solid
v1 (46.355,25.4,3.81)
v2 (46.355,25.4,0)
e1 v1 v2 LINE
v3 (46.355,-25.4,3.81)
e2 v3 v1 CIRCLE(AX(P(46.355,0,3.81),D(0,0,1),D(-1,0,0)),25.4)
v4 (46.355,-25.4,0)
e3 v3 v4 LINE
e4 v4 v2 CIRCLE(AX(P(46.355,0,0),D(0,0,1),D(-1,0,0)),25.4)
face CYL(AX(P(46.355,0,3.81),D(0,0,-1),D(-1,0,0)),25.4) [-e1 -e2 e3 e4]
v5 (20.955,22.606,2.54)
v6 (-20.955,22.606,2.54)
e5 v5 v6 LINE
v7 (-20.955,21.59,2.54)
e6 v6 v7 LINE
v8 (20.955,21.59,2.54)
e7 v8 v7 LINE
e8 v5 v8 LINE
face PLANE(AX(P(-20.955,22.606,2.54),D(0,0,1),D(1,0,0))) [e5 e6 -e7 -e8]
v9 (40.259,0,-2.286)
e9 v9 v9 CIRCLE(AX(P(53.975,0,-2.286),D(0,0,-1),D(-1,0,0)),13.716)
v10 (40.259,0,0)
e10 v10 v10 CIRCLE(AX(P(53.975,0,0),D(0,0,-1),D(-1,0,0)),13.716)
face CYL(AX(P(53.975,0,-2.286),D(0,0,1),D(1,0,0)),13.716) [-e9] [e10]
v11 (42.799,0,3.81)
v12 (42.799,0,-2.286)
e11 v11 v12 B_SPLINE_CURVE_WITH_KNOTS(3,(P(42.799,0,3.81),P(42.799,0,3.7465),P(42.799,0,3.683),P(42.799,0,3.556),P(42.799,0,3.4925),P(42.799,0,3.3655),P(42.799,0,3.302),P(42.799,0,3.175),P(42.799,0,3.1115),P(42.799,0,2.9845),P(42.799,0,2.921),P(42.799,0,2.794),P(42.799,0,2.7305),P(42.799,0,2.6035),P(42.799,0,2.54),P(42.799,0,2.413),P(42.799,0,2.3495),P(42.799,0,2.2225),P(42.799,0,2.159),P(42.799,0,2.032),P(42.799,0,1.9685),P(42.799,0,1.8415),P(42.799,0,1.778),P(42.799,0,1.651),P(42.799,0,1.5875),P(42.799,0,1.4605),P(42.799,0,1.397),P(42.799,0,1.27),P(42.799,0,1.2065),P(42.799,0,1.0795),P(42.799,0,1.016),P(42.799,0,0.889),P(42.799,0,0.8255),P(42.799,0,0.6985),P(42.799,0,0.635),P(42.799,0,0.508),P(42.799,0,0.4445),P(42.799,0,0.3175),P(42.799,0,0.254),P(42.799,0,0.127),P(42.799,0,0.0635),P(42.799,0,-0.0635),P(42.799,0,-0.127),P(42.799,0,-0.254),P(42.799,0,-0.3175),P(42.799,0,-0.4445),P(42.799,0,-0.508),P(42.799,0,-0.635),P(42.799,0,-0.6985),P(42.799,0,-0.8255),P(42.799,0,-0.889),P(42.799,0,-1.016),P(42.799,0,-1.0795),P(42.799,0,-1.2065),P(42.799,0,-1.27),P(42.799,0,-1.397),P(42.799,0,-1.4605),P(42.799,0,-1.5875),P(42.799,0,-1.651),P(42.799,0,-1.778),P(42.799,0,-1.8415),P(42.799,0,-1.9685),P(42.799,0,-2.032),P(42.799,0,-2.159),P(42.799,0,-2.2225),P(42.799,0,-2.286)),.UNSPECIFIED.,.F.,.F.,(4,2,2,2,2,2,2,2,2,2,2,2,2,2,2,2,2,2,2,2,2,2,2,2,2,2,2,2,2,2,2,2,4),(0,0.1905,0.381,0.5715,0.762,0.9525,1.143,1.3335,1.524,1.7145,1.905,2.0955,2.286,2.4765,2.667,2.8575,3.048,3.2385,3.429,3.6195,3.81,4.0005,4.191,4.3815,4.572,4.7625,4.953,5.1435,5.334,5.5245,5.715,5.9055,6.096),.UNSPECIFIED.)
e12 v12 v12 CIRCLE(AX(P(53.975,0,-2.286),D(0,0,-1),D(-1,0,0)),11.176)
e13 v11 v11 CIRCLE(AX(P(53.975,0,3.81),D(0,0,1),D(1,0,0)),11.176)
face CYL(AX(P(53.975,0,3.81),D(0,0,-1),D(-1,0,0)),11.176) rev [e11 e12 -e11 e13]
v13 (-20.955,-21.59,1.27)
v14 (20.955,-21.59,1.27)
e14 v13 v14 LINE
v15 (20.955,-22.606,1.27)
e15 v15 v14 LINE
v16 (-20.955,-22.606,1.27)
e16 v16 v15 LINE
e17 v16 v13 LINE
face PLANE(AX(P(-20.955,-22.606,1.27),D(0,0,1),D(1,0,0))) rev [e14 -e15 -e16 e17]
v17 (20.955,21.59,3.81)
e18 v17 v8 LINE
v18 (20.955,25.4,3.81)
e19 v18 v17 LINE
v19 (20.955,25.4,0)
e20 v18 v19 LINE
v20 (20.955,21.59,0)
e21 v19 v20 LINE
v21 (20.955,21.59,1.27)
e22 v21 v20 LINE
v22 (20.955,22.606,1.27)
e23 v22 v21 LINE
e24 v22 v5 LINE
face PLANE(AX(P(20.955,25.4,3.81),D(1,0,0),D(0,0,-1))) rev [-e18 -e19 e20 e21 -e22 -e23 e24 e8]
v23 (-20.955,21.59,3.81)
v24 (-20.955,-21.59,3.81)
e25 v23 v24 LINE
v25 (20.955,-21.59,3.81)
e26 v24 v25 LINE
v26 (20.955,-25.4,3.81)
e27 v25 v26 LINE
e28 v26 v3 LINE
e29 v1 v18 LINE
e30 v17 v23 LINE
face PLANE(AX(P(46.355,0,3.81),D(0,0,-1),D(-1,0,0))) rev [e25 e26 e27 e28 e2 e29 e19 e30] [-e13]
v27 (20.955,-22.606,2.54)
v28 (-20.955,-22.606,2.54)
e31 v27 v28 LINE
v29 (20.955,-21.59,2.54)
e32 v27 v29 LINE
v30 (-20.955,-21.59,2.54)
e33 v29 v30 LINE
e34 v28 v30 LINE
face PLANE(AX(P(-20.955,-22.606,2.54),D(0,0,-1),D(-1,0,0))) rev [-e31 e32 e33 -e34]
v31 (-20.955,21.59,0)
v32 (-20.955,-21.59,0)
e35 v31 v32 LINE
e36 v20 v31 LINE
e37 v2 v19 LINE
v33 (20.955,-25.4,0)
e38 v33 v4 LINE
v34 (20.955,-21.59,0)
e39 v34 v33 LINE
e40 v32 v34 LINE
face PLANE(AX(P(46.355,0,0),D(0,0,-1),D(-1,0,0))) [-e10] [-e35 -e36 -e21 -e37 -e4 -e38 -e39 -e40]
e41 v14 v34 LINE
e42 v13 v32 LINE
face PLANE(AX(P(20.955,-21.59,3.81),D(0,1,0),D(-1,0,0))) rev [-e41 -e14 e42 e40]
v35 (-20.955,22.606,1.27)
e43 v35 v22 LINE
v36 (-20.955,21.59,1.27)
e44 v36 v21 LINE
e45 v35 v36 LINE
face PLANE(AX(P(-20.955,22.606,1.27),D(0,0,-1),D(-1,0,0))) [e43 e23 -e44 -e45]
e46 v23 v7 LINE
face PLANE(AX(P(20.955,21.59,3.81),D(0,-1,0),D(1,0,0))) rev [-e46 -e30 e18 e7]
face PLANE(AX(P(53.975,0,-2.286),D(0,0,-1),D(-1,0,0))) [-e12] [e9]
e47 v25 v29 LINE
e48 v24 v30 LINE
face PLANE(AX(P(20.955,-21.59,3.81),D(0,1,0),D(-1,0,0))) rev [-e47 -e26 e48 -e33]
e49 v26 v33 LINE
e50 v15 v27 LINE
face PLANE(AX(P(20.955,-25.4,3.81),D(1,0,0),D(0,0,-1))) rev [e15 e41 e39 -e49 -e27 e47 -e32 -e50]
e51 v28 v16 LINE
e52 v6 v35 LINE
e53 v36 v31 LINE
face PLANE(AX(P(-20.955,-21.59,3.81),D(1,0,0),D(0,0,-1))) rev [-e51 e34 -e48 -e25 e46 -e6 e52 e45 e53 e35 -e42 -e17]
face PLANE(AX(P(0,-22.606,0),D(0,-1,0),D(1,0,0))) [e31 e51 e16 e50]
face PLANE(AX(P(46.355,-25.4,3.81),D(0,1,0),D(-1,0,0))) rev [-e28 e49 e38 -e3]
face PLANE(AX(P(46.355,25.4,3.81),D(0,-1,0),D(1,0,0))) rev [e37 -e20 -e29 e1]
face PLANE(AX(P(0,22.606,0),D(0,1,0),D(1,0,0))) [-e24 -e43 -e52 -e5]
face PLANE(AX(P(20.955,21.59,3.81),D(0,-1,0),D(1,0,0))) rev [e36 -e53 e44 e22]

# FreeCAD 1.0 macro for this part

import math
import FreeCAD as App
import Part
import Sketcher

V = App.Vector
Q = App.Units.Quantity

doc = App.newDocument("Part")
body = doc.addObject("PartDesign::Body", "Body")

# Sketch on XY plane
sketch1 = body.newObject("Sketcher::SketchObject", "Sketch")
sketch1.AttachmentSupport = (doc.getObject("XY_Plane"), [""])
sketch1.MapMode = "FlatFace"
sketch1.addGeometry(Part.LineSegment(V(21, -21.6, 0), V(21, -25.4, 0)), False)
sketch1.addGeometry(Part.LineSegment(V(21, -25.4, 0), V(46.4, -25.4, 0)), False)
sketch1.addGeometry(Part.ArcOfCircle(Part.Circle(V(46.4, 0, 0), V(0, 0, 1), 25.4), math.radians(-90), math.radians(90)), False)
sketch1.addGeometry(Part.LineSegment(V(46.4, 25.4, 0), V(21, 25.4, 0)), False)
sketch1.addGeometry(Part.LineSegment(V(21, 25.4, 0), V(21, 21.6, 0)), False)
sketch1.addGeometry(Part.LineSegment(V(21, 21.6, 0), V(-21, 21.6, 0)), False)
sketch1.addGeometry(Part.LineSegment(V(-21, 21.6, 0), V(-21, -21.6, 0)), False)
sketch1.addGeometry(Part.LineSegment(V(-21, -21.6, 0), V(21, -21.6, 0)), False)
sketch1.addGeometry(Part.Circle(V(54, 0, 0), V(0, 0, 1), 11.2), False)
sketch1.addConstraint(Sketcher.Constraint("Coincident", 0, 2, 1, 1))
sketch1.addConstraint(Sketcher.Constraint("Tangent", 1, 2, 2, 1))
sketch1.addConstraint(Sketcher.Constraint("Tangent", 2, 2, 3, 1))
sketch1.addConstraint(Sketcher.Constraint("Coincident", 3, 2, 4, 1))
sketch1.addConstraint(Sketcher.Constraint("Coincident", 4, 2, 5, 1))
sketch1.addConstraint(Sketcher.Constraint("Coincident", 5, 2, 6, 1))
sketch1.addConstraint(Sketcher.Constraint("Coincident", 6, 2, 7, 1))
sketch1.addConstraint(Sketcher.Constraint("Coincident", 7, 2, 0, 1))
sketch1.addConstraint(Sketcher.Constraint("Vertical", 0))
sketch1.addConstraint(Sketcher.Constraint("Horizontal", 1))
sketch1.addConstraint(Sketcher.Constraint("Horizontal", 3))
sketch1.addConstraint(Sketcher.Constraint("Vertical", 4))
sketch1.addConstraint(Sketcher.Constraint("Horizontal", 5))
sketch1.addConstraint(Sketcher.Constraint("Vertical", 6))
sketch1.addConstraint(Sketcher.Constraint("Horizontal", 7))
sketch1.addConstraint(Sketcher.Constraint("Symmetric", 4, 2, 6, 2, -1, 1))
sketch1.addConstraint(Sketcher.Constraint("Symmetric", 0, 2, 3, 2, -1))
sketch1.addConstraint(Sketcher.Constraint("PointOnObject", 8, 3, -1))
sketch1.addConstraint(Sketcher.Constraint("Radius", 2, Q("1 in")))
sketch1.addConstraint(Sketcher.Constraint("Diameter", 8, Q("0.88 in")))
sketch1.addConstraint(Sketcher.Constraint("DistanceX", 1, 1, 1, 2, Q("1 in")))
sketch1.addConstraint(Sketcher.Constraint("DistanceY", 6, 2, 6, 1, Q("1.7 in")))
sketch1.addConstraint(Sketcher.Constraint("DistanceX", 5, 2, 5, 1, Q("1.65 in")))
sketch1.addConstraint(Sketcher.Constraint("DistanceX", 2, 3, 8, 3, Q("0.3 in")))
pad1 = body.newObject("PartDesign::Pad", "Pad")
pad1.Profile = sketch1
pad1.Length = Q("0.15 in")

# Sketch on XZ plane
sketch2 = body.newObject("Sketcher::SketchObject", "Sketch001")
sketch2.AttachmentSupport = (doc.getObject("XZ_Plane"), [""])
sketch2.MapMode = "FlatFace"
sketch2.AttachmentOffset = App.Placement(V(0, 0, 0.85 * 25.4), App.Rotation())
sketch2.addGeometry(Part.LineSegment(V(-21, 2.5, 0), V(-21, 1.3, 0)), False)
sketch2.addGeometry(Part.LineSegment(V(-21, 1.3, 0), V(21, 1.3, 0)), False)
sketch2.addGeometry(Part.LineSegment(V(21, 1.3, 0), V(21, 2.5, 0)), False)
sketch2.addGeometry(Part.LineSegment(V(21, 2.5, 0), V(-21, 2.5, 0)), False)
sketch2.addConstraint(Sketcher.Constraint("Coincident", 0, 2, 1, 1))
sketch2.addConstraint(Sketcher.Constraint("Coincident", 1, 2, 2, 1))
sketch2.addConstraint(Sketcher.Constraint("Coincident", 2, 2, 3, 1))
sketch2.addConstraint(Sketcher.Constraint("Coincident", 3, 2, 0, 1))
sketch2.addConstraint(Sketcher.Constraint("Vertical", 0))
sketch2.addConstraint(Sketcher.Constraint("Horizontal", 1))
sketch2.addConstraint(Sketcher.Constraint("Vertical", 2))
sketch2.addConstraint(Sketcher.Constraint("Horizontal", 3))
sketch2.addConstraint(Sketcher.Constraint("DistanceX", 1, 1, 1, 2, Q("1.65 in")))
sketch2.addConstraint(Sketcher.Constraint("DistanceY", 0, 2, 0, 1, Q("0.05 in")))
sketch2.addConstraint(Sketcher.Constraint("DistanceY", -1, 1, 2, 2, Q("0.1 in")))
sketch2.addConstraint(Sketcher.Constraint("DistanceX", 0, 2, -1, 1, Q("0.825 in")))
pad2 = body.newObject("PartDesign::Pad", "Pad001")
pad2.Profile = sketch2
pad2.Length = Q("0.04 in")
doc.recompute()

mirrored = body.newObject("PartDesign::Mirrored", "Mirrored")
mirrored.Originals = [pad2]
mirrored.MirrorPlane = (doc.getObject("XZ_Plane"), [""])
body.Tip = mirrored

# Sketch on XY plane
sketch3 = body.newObject("Sketcher::SketchObject", "Sketch002")
sketch3.AttachmentSupport = (doc.getObject("XY_Plane"), [""])
sketch3.MapMode = "FlatFace"
sketch3.AttachmentOffset = App.Placement(V(0, 0, -0.09 * 25.4), App.Rotation())
sketch3.addGeometry(Part.Circle(V(54, 0, 0), V(0, 0, 1), 14), False)
sketch3.addGeometry(Part.Circle(V(54, 0, 0), V(0, 0, 1), 11), False)
sketch3.addConstraint(Sketcher.Constraint("Coincident", 1, 3, 0, 3))
sketch3.addConstraint(Sketcher.Constraint("PointOnObject", 0, 3, -1))
sketch3.addConstraint(Sketcher.Constraint("Diameter", 0, Q("1.08 in")))
sketch3.addConstraint(Sketcher.Constraint("Diameter", 1, Q("0.88 in")))
sketch3.addConstraint(Sketcher.Constraint("DistanceX", -1, 1, 0, 3, Q("2.125 in")))
pad3 = body.newObject("PartDesign::Pad", "Pad002")
pad3.Profile = sketch3
pad3.Length = Q("0.09 in")

doc.recompute()
